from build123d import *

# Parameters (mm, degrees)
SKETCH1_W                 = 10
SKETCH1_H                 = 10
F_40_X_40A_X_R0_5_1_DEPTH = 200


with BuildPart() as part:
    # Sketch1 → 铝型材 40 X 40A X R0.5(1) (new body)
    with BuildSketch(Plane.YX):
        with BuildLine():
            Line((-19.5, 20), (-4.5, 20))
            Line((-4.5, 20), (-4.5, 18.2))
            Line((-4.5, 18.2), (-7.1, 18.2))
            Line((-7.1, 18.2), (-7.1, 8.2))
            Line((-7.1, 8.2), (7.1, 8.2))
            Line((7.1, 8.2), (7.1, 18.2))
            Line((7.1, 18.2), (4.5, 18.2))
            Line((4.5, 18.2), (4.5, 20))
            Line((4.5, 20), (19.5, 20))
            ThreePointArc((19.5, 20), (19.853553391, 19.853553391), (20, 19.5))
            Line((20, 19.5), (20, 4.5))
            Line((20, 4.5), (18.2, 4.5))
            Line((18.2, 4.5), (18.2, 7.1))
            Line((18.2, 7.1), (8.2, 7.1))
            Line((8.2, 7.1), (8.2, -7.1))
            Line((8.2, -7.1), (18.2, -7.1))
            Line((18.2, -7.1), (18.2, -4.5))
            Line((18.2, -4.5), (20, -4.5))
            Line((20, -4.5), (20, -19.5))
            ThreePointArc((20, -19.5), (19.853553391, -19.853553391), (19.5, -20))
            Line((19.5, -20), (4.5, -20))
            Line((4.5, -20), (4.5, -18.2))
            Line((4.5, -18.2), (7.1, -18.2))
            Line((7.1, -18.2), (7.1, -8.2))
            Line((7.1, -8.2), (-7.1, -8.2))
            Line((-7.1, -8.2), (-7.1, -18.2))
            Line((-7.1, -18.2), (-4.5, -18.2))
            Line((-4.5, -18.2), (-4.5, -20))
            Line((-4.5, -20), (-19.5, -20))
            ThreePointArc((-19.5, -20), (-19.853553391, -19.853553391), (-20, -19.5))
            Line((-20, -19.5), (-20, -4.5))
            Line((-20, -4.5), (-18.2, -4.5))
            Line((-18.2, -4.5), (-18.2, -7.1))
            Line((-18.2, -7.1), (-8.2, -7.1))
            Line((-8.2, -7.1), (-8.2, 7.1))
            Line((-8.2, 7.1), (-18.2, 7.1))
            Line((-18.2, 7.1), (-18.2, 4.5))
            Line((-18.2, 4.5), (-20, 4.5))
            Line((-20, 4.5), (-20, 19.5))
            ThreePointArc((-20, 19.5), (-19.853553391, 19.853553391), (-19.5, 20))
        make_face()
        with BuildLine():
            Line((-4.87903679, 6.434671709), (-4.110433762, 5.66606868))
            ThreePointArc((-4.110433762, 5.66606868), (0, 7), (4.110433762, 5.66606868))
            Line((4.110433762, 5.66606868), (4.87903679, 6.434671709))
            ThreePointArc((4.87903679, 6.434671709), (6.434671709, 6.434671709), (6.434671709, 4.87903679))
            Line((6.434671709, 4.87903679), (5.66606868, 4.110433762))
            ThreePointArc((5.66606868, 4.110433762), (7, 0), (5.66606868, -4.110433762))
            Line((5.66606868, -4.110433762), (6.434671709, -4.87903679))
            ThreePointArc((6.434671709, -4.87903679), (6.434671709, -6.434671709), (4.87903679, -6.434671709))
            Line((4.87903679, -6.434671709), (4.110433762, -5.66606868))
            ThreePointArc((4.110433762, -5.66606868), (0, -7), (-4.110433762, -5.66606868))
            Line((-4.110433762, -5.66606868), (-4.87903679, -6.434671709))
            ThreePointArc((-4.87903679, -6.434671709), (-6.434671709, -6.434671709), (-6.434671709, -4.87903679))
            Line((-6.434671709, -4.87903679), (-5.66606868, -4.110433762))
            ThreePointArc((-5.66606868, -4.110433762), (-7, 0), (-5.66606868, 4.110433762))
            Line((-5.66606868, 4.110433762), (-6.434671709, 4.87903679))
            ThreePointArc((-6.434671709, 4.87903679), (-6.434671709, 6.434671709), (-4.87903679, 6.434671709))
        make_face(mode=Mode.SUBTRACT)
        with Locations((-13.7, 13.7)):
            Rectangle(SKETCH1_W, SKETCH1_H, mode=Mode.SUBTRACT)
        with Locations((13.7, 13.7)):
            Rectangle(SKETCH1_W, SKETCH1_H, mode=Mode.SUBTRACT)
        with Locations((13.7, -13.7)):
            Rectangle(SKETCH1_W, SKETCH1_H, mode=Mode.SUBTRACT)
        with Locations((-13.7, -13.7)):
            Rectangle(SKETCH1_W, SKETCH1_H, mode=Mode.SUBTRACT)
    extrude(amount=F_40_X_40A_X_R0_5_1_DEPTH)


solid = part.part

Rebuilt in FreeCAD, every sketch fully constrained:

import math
import FreeCAD as App
import Part
import Sketcher


def add_polygon(sketch, points):
    """Adds a closed chain of lines whose ends are joined by coincident constraints."""
    first, n = sketch.GeometryCount, len(points)
    for a, b in zip(points, points[1:] + points[:1]):
        sketch.addGeometry(Part.LineSegment(App.Vector(*a, 0), App.Vector(*b, 0)), False)
    for i in range(n):
        sketch.addConstraint(Sketcher.Constraint("Coincident", first + i, 2, first + (i + 1) % n, 1))

doc = App.newDocument("Part")
body = doc.addObject("PartDesign::Body", "Body")

sketch1 = body.newObject("Sketcher::SketchObject", "Sketch")
sketch1.AttachmentSupport = (doc.getObject("XY_Plane"), [""])
sketch1.MapMode = "FlatFace"
sketch1.addGeometry(Part.LineSegment(App.Vector(20, -4.5, 0), App.Vector(20, -19.5, 0)), False)
sketch1.addGeometry(Part.ArcOfCircle(Part.Circle(App.Vector(19.5, -19.5, 0), App.Vector(0, 0, 1), 0.5), math.radians(-90), math.radians(0)), False)
sketch1.addGeometry(Part.LineSegment(App.Vector(19.5, -20, 0), App.Vector(4.5, -20, 0)), False)
sketch1.addGeometry(Part.LineSegment(App.Vector(4.5, -20, 0), App.Vector(4.5, -18.2, 0)), False)
sketch1.addGeometry(Part.LineSegment(App.Vector(4.5, -18.2, 0), App.Vector(7.1, -18.2, 0)), False)
sketch1.addGeometry(Part.LineSegment(App.Vector(7.1, -18.2, 0), App.Vector(7.1, -8.2, 0)), False)
sketch1.addGeometry(Part.LineSegment(App.Vector(7.1, -8.2, 0), App.Vector(-7.1, -8.2, 0)), False)
sketch1.addGeometry(Part.LineSegment(App.Vector(-7.1, -8.2, 0), App.Vector(-7.1, -18.2, 0)), False)
sketch1.addGeometry(Part.LineSegment(App.Vector(-7.1, -18.2, 0), App.Vector(-4.5, -18.2, 0)), False)
sketch1.addGeometry(Part.LineSegment(App.Vector(-4.5, -18.2, 0), App.Vector(-4.5, -20, 0)), False)
sketch1.addGeometry(Part.LineSegment(App.Vector(-4.5, -20, 0), App.Vector(-19.5, -20, 0)), False)
sketch1.addGeometry(Part.ArcOfCircle(Part.Circle(App.Vector(-19.5, -19.5, 0), App.Vector(0, 0, 1), 0.5), math.radians(180), math.radians(270)), False)
sketch1.addGeometry(Part.LineSegment(App.Vector(-20, -19.5, 0), App.Vector(-20, -4.5, 0)), False)
sketch1.addGeometry(Part.LineSegment(App.Vector(-20, -4.5, 0), App.Vector(-18.2, -4.5, 0)), False)
sketch1.addGeometry(Part.LineSegment(App.Vector(-18.2, -4.5, 0), App.Vector(-18.2, -7.1, 0)), False)
sketch1.addGeometry(Part.LineSegment(App.Vector(-18.2, -7.1, 0), App.Vector(-8.2, -7.1, 0)), False)
sketch1.addGeometry(Part.LineSegment(App.Vector(-8.2, -7.1, 0), App.Vector(-8.2, 7.1, 0)), False)
sketch1.addGeometry(Part.LineSegment(App.Vector(-8.2, 7.1, 0), App.Vector(-18.2, 7.1, 0)), False)
sketch1.addGeometry(Part.LineSegment(App.Vector(-18.2, 7.1, 0), App.Vector(-18.2, 4.5, 0)), False)
sketch1.addGeometry(Part.LineSegment(App.Vector(-18.2, 4.5, 0), App.Vector(-20, 4.5, 0)), False)
sketch1.addGeometry(Part.LineSegment(App.Vector(-20, 4.5, 0), App.Vector(-20, 19.5, 0)), False)
sketch1.addGeometry(Part.ArcOfCircle(Part.Circle(App.Vector(-19.5, 19.5, 0), App.Vector(0, 0, 1), 0.5), math.radians(90), math.radians(180)), False)
sketch1.addGeometry(Part.LineSegment(App.Vector(-19.5, 20, 0), App.Vector(-4.5, 20, 0)), False)
sketch1.addGeometry(Part.LineSegment(App.Vector(-4.5, 20, 0), App.Vector(-4.5, 18.2, 0)), False)
sketch1.addGeometry(Part.LineSegment(App.Vector(-4.5, 18.2, 0), App.Vector(-7.1, 18.2, 0)), False)
sketch1.addGeometry(Part.LineSegment(App.Vector(-7.1, 18.2, 0), App.Vector(-7.1, 8.2, 0)), False)
sketch1.addGeometry(Part.LineSegment(App.Vector(-7.1, 8.2, 0), App.Vector(7.1, 8.2, 0)), False)
sketch1.addGeometry(Part.LineSegment(App.Vector(7.1, 8.2, 0), App.Vector(7.1, 18.2, 0)), False)
sketch1.addGeometry(Part.LineSegment(App.Vector(7.1, 18.2, 0), App.Vector(4.5, 18.2, 0)), False)
sketch1.addGeometry(Part.LineSegment(App.Vector(4.5, 18.2, 0), App.Vector(4.5, 20, 0)), False)
sketch1.addGeometry(Part.LineSegment(App.Vector(4.5, 20, 0), App.Vector(19.5, 20, 0)), False)
sketch1.addGeometry(Part.ArcOfCircle(Part.Circle(App.Vector(19.5, 19.5, 0), App.Vector(0, 0, 1), 0.5), math.radians(0), math.radians(90)), False)
sketch1.addGeometry(Part.LineSegment(App.Vector(20, 19.5, 0), App.Vector(20, 4.5, 0)), False)
sketch1.addGeometry(Part.LineSegment(App.Vector(20, 4.5, 0), App.Vector(18.2, 4.5, 0)), False)
sketch1.addGeometry(Part.LineSegment(App.Vector(18.2, 4.5, 0), App.Vector(18.2, 7.1, 0)), False)
sketch1.addGeometry(Part.LineSegment(App.Vector(18.2, 7.1, 0), App.Vector(8.2, 7.1, 0)), False)
sketch1.addGeometry(Part.LineSegment(App.Vector(8.2, 7.1, 0), App.Vector(8.2, -7.1, 0)), False)
sketch1.addGeometry(Part.LineSegment(App.Vector(8.2, -7.1, 0), App.Vector(18.2, -7.1, 0)), False)
sketch1.addGeometry(Part.LineSegment(App.Vector(18.2, -7.1, 0), App.Vector(18.2, -4.5, 0)), False)
sketch1.addGeometry(Part.LineSegment(App.Vector(18.2, -4.5, 0), App.Vector(20, -4.5, 0)), False)
add_polygon(sketch1, [(-18.7, 8.7), (-8.7, 8.7), (-8.7, 18.7), (-18.7, 18.7)])
sketch1.addGeometry(Part.LineSegment(App.Vector(6.43, -4.88, 0), App.Vector(5.67, -4.11, 0)), False)
sketch1.addGeometry(Part.ArcOfCircle(Part.Circle(App.Vector(0, 0, 0), App.Vector(0, 0, 1), 7), math.radians(-36), math.radians(36)), False)
sketch1.addGeometry(Part.LineSegment(App.Vector(5.67, 4.11, 0), App.Vector(6.43, 4.88, 0)), False)
sketch1.addGeometry(Part.ArcOfCircle(Part.Circle(App.Vector(5.66, 5.66, 0), App.Vector(0, 0, 1), 1.1), math.radians(-45), math.radians(135)), False)
sketch1.addGeometry(Part.LineSegment(App.Vector(4.88, 6.43, 0), App.Vector(4.11, 5.67, 0)), False)
sketch1.addGeometry(Part.ArcOfCircle(Part.Circle(App.Vector(0, 0, 0), App.Vector(0, 0, 1), 7), math.radians(54), math.radians(126)), False)
sketch1.addGeometry(Part.LineSegment(App.Vector(-4.11, 5.67, 0), App.Vector(-4.88, 6.43, 0)), False)
sketch1.addGeometry(Part.ArcOfCircle(Part.Circle(App.Vector(-5.66, 5.66, 0), App.Vector(0, 0, 1), 1.1), math.radians(45), math.radians(225)), False)
sketch1.addGeometry(Part.LineSegment(App.Vector(-6.43, 4.88, 0), App.Vector(-5.67, 4.11, 0)), False)
sketch1.addGeometry(Part.ArcOfCircle(Part.Circle(App.Vector(0, 0, 0), App.Vector(0, 0, 1), 7), math.radians(144), math.radians(216)), False)
sketch1.addGeometry(Part.LineSegment(App.Vector(-5.67, -4.11, 0), App.Vector(-6.43, -4.88, 0)), False)
sketch1.addGeometry(Part.ArcOfCircle(Part.Circle(App.Vector(-5.66, -5.66, 0), App.Vector(0, 0, 1), 1.1), math.radians(135), math.radians(315)), False)
sketch1.addGeometry(Part.LineSegment(App.Vector(-4.88, -6.43, 0), App.Vector(-4.11, -5.67, 0)), False)
sketch1.addGeometry(Part.ArcOfCircle(Part.Circle(App.Vector(0, 0, 0), App.Vector(0, 0, 1), 7), math.radians(-126), math.radians(-54)), False)
sketch1.addGeometry(Part.LineSegment(App.Vector(4.11, -5.67, 0), App.Vector(4.88, -6.43, 0)), False)
sketch1.addGeometry(Part.ArcOfCircle(Part.Circle(App.Vector(5.66, -5.66, 0), App.Vector(0, 0, 1), 1.1), math.radians(-135), math.radians(45)), False)
add_polygon(sketch1, [(-18.7, -18.7), (-8.7, -18.7), (-8.7, -8.7), (-18.7, -8.7)])
add_polygon(sketch1, [(8.7, 8.7), (18.7, 8.7), (18.7, 18.7), (8.7, 18.7)])
add_polygon(sketch1, [(8.7, -18.7), (18.7, -18.7), (18.7, -8.7), (8.7, -8.7)])
sketch1.addConstraint([
    Sketcher.Constraint("Tangent", 0, 2, 1, 2),
    Sketcher.Constraint("Tangent", 1, 1, 2, 1),
    Sketcher.Constraint("Coincident", 2, 2, 3, 1),
    Sketcher.Constraint("Coincident", 3, 2, 4, 1),
    Sketcher.Constraint("Coincident", 4, 2, 5, 1),
    Sketcher.Constraint("Coincident", 5, 2, 6, 1),
    Sketcher.Constraint("Coincident", 6, 2, 7, 1),
    Sketcher.Constraint("Coincident", 7, 2, 8, 1),
    Sketcher.Constraint("Coincident", 8, 2, 9, 1),
    Sketcher.Constraint("Coincident", 9, 2, 10, 1),
    Sketcher.Constraint("Tangent", 10, 2, 11, 2),
    Sketcher.Constraint("Tangent", 11, 1, 12, 1),
    Sketcher.Constraint("Coincident", 12, 2, 13, 1),
    Sketcher.Constraint("Coincident", 13, 2, 14, 1),
    Sketcher.Constraint("Coincident", 14, 2, 15, 1),
    Sketcher.Constraint("Coincident", 15, 2, 16, 1),
    Sketcher.Constraint("Coincident", 16, 2, 17, 1),
    Sketcher.Constraint("Coincident", 17, 2, 18, 1),
    Sketcher.Constraint("Coincident", 18, 2, 19, 1),
    Sketcher.Constraint("Coincident", 19, 2, 20, 1),
    Sketcher.Constraint("Tangent", 20, 2, 21, 2),
    Sketcher.Constraint("Tangent", 21, 1, 22, 1),
    Sketcher.Constraint("Coincident", 22, 2, 23, 1),
    Sketcher.Constraint("Coincident", 23, 2, 24, 1),
    Sketcher.Constraint("Coincident", 24, 2, 25, 1),
    Sketcher.Constraint("Coincident", 25, 2, 26, 1),
    Sketcher.Constraint("Coincident", 26, 2, 27, 1),
    Sketcher.Constraint("Coincident", 27, 2, 28, 1),
    Sketcher.Constraint("Coincident", 28, 2, 29, 1),
    Sketcher.Constraint("Coincident", 29, 2, 30, 1),
    Sketcher.Constraint("Tangent", 30, 2, 31, 2),
    Sketcher.Constraint("Tangent", 31, 1, 32, 1),
    Sketcher.Constraint("Coincident", 32, 2, 33, 1),
    Sketcher.Constraint("Coincident", 33, 2, 34, 1),
    Sketcher.Constraint("Coincident", 34, 2, 35, 1),
    Sketcher.Constraint("Coincident", 35, 2, 36, 1),
    Sketcher.Constraint("Coincident", 36, 2, 37, 1),
    Sketcher.Constraint("Coincident", 37, 2, 38, 1),
    Sketcher.Constraint("Coincident", 38, 2, 39, 1),
    Sketcher.Constraint("Coincident", 39, 2, 0, 1),
    Sketcher.Constraint("Coincident", 44, 2, 45, 1),
    Sketcher.Constraint("Coincident", 45, 2, 46, 1),
    Sketcher.Constraint("Tangent", 46, 2, 47, 1),
    Sketcher.Constraint("Tangent", 47, 2, 48, 1),
    Sketcher.Constraint("Coincident", 48, 2, 49, 1),
    Sketcher.Constraint("Coincident", 49, 2, 50, 1),
    Sketcher.Constraint("Tangent", 50, 2, 51, 1),
    Sketcher.Constraint("Tangent", 51, 2, 52, 1),
    Sketcher.Constraint("Coincident", 52, 2, 53, 1),
    Sketcher.Constraint("Coincident", 53, 2, 54, 1),
    Sketcher.Constraint("Tangent", 54, 2, 55, 1),
    Sketcher.Constraint("Tangent", 55, 2, 56, 1),
    Sketcher.Constraint("Coincident", 56, 2, 57, 1),
    Sketcher.Constraint("Coincident", 57, 2, 58, 1),
    Sketcher.Constraint("Tangent", 58, 2, 59, 1),
    Sketcher.Constraint("Tangent", 59, 2, 44, 1),
    Sketcher.Constraint("Vertical", 0),
    Sketcher.Constraint("Horizontal", 2),
    Sketcher.Constraint("Vertical", 3),
    Sketcher.Constraint("Horizontal", 4),
    Sketcher.Constraint("Vertical", 5),
    Sketcher.Constraint("Horizontal", 6),
    Sketcher.Constraint("Vertical", 7),
    Sketcher.Constraint("Horizontal", 8),
    Sketcher.Constraint("Vertical", 9),
    Sketcher.Constraint("Horizontal", 10),
    Sketcher.Constraint("Vertical", 12),
    Sketcher.Constraint("Horizontal", 13),
    Sketcher.Constraint("Vertical", 14),
    Sketcher.Constraint("Horizontal", 15),
    Sketcher.Constraint("Vertical", 16),
    Sketcher.Constraint("Horizontal", 17),
    Sketcher.Constraint("Vertical", 18),
    Sketcher.Constraint("Horizontal", 19),
    Sketcher.Constraint("Vertical", 20),
    Sketcher.Constraint("Horizontal", 22),
    Sketcher.Constraint("Vertical", 23),
    Sketcher.Constraint("Horizontal", 24),
    Sketcher.Constraint("Vertical", 25),
    Sketcher.Constraint("Horizontal", 26),
    Sketcher.Constraint("Vertical", 27),
    Sketcher.Constraint("Horizontal", 28),
    Sketcher.Constraint("Vertical", 29),
    Sketcher.Constraint("Horizontal", 30),
    Sketcher.Constraint("Vertical", 32),
    Sketcher.Constraint("Horizontal", 33),
    Sketcher.Constraint("Vertical", 34),
    Sketcher.Constraint("Horizontal", 35),
    Sketcher.Constraint("Vertical", 36),
    Sketcher.Constraint("Horizontal", 37),
    Sketcher.Constraint("Vertical", 38),
    Sketcher.Constraint("Horizontal", 39),
    Sketcher.Constraint("Horizontal", 40),
    Sketcher.Constraint("Vertical", 41),
    Sketcher.Constraint("Horizontal", 42),
    Sketcher.Constraint("Vertical", 43),
    Sketcher.Constraint("Horizontal", 60),
    Sketcher.Constraint("Vertical", 61),
    Sketcher.Constraint("Horizontal", 62),
    Sketcher.Constraint("Vertical", 63),
    Sketcher.Constraint("Horizontal", 64),
    Sketcher.Constraint("Vertical", 65),
    Sketcher.Constraint("Horizontal", 66),
    Sketcher.Constraint("Vertical", 67),
    Sketcher.Constraint("Horizontal", 68),
    Sketcher.Constraint("Vertical", 69),
    Sketcher.Constraint("Horizontal", 70),
    Sketcher.Constraint("Vertical", 71),
    Sketcher.Constraint("Coincident", 45, 3, -1, 1),
    Sketcher.Constraint("Coincident", 49, 3, -1, 1),
    Sketcher.Constraint("Coincident", 53, 3, -1, 1),
    Sketcher.Constraint("Coincident", 57, 3, -1, 1),
    Sketcher.Constraint("Equal", 1, 11),
    Sketcher.Constraint("Equal", 11, 21),
    Sketcher.Constraint("Equal", 21, 31),
    Sketcher.Constraint("Equal", 45, 49),
    Sketcher.Constraint("Equal", 47, 51),
    Sketcher.Constraint("Equal", 49, 53),
    Sketcher.Constraint("Equal", 51, 55),
    Sketcher.Constraint("Equal", 53, 57),
    Sketcher.Constraint("Equal", 55, 59),
    Sketcher.Constraint("Symmetric", 1, 3, 21, 3, -1, 1),
    Sketcher.Constraint("Symmetric", 11, 3, 31, 3, -1, 1),
    Sketcher.Constraint("Symmetric", 47, 3, 55, 3, -1, 1),
    Sketcher.Constraint("Symmetric", 51, 3, 59, 3, -1, 1),
    Sketcher.Constraint("Symmetric", 3, 2, 23, 2, -1, 1),
    Sketcher.Constraint("Symmetric", 5, 2, 25, 2, -1, 1),
    Sketcher.Constraint("Symmetric", 7, 2, 27, 2, -1, 1),
    Sketcher.Constraint("Symmetric", 13, 2, 33, 2, -1, 1),
    Sketcher.Constraint("Symmetric", 15, 2, 35, 2, -1, 1),
    Sketcher.Constraint("Symmetric", 17, 2, 37, 2, -1, 1),
    Sketcher.Constraint("Symmetric", 62, 2, 64, 2, -1, 1),
    Sketcher.Constraint("Symmetric", 60, 2, 66, 2, -1, 1),
    Sketcher.Constraint("Symmetric", 42, 2, 68, 2, -1, 1),
    Sketcher.Constraint("Symmetric", 40, 2, 70, 2, -1, 1),
    Sketcher.Constraint("Symmetric", 1, 3, 11, 3, -2),
    Sketcher.Constraint("Symmetric", 47, 3, 51, 3, -2),
    Sketcher.Constraint("Symmetric", 4, 2, 7, 2, -2),
    Sketcher.Constraint("Symmetric", 18, 2, 33, 2, -2),
    Sketcher.Constraint("Symmetric", 43, 2, 64, 2, -2),
    Sketcher.Constraint("Symmetric", 41, 2, 66, 2, -2),
    Sketcher.Constraint("Perpendicular", 44, 46),
    Sketcher.Constraint("Parallel", 46, 48),
    Sketcher.Constraint("Perpendicular", 48, 50),
    Sketcher.Constraint("Parallel", 50, 52),
    Sketcher.Constraint("Perpendicular", 52, 54),
    Sketcher.Constraint("Parallel", 54, 56),
    Sketcher.Constraint("Perpendicular", 56, 58),
    Sketcher.Constraint("Horizontal", 17, 2, 34, 2),
    Sketcher.Constraint("Horizontal", 13, 2, 38, 2),
    Sketcher.Constraint("Horizontal", 48, 2, 49, 2),
    Sketcher.Constraint("Vertical", 9, 2, 22, 2),
    Sketcher.Constraint("Vertical", 3, 2, 28, 2),
    Sketcher.Constraint("Equal", 37, 40),
    Sketcher.Constraint("Equal", 30, 0),
    Sketcher.Constraint("Equal", 39, 3),
    Sketcher.Constraint("Equal", 70, 5),
    Sketcher.Constraint("Equal", 28, 14),
    Sketcher.Constraint("Equal", 26, 16),
    Sketcher.Constraint("Equal", 27, 41),
    Sketcher.Constraint("Equal", 46, 48),
    Sketcher.Constraint("Radius", 45, 7.0),
    Sketcher.Constraint("Radius", 1, 0.5),
    Sketcher.Constraint("Radius", 47, 1.1),
    Sketcher.Constraint("DistanceX", 2, 2, 2, 1, 15.0),
    Sketcher.Constraint("DistanceX", 15, 1, 15, 2, 10.0),
    Sketcher.Constraint("DistanceX", 4, 1, 4, 2, 2.6),
    Sketcher.Constraint("DistanceX", 6, 2, 6, 1, 14.2),
    Sketcher.Constraint("DistanceX", 13, 1, 13, 2, 1.8),
    Sketcher.Constraint("DistanceX", 40, 2, -1, 1, 8.7),
    Sketcher.Constraint("DistanceY", -1, 1, 40, 2, 8.7),
    Sketcher.Constraint("Distance", 44, 1.086969),
])
pad1 = body.newObject("PartDesign::Pad", "Pad")
pad1.Profile = sketch1
pad1.Length = 200
pad1.Reversed = True

doc.recompute()
